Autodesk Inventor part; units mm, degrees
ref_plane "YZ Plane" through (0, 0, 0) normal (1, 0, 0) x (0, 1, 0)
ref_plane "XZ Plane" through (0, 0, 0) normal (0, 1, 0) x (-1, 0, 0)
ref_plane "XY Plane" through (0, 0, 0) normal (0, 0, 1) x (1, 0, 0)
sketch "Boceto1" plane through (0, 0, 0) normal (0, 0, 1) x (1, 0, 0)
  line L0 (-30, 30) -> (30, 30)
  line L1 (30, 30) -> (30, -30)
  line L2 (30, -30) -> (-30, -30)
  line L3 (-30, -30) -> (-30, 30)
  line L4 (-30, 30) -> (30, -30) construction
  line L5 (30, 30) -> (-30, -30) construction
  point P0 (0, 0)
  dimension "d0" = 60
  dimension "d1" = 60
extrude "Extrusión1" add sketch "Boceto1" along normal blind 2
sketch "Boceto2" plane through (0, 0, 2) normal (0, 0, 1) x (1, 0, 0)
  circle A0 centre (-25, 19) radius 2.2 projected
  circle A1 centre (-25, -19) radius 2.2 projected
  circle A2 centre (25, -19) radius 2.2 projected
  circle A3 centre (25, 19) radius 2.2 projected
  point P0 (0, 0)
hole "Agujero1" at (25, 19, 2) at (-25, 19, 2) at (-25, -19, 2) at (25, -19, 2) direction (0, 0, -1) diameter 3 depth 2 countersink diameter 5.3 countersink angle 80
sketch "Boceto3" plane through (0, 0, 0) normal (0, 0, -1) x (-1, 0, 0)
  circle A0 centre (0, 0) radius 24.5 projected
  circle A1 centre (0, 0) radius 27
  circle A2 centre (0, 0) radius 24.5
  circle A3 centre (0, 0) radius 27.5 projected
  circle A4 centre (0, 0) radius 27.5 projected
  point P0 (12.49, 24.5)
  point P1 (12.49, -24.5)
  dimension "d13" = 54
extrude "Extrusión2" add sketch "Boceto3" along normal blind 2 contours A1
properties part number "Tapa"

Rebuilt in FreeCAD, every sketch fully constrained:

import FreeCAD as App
import Part
import Sketcher
from FreeCAD import Vector


def add_polygon(sketch, points):
    """Adds a closed chain of lines whose ends are joined by coincident constraints."""
    first, n = sketch.GeometryCount, len(points)
    for a, b in zip(points, points[1:] + points[:1]):
        sketch.addGeometry(Part.LineSegment(App.Vector(*a, 0), App.Vector(*b, 0)), False)
    for i in range(n):
        sketch.addConstraint(Sketcher.Constraint("Coincident", first + i, 2, first + (i + 1) % n, 1))

doc = App.newDocument("Part")
body = doc.addObject("PartDesign::Body", "Body")

# Sketch on XY plane
sketch1 = body.newObject("Sketcher::SketchObject", "Sketch")
sketch1.AttachmentSupport = (doc.getObject("XY_Plane"), [""])
sketch1.MapMode = "FlatFace"
add_polygon(sketch1, [(30, 30), (-30, 30), (-30, -30), (30, -30)])  # lines 0-3
sketch1.addConstraint([
    Sketcher.Constraint("Horizontal", 0),
    Sketcher.Constraint("Vertical", 1),
    Sketcher.Constraint("Horizontal", 2),
    Sketcher.Constraint("Vertical", 3),
    Sketcher.Constraint("Symmetric", 0, 2, 2, 2, -1, 1),
    Sketcher.Constraint("Equal", 2, 1),
    Sketcher.Constraint("DistanceX", 0, 2, 0, 1, 60.0),
])
pad1 = body.newObject("PartDesign::Pad", "Pad")
pad1.Profile = sketch1
pad1.Length = 2

# Sketch on XY plane
sketch2 = body.newObject("Sketcher::SketchObject", "Sketch001")
sketch2.AttachmentSupport = (doc.getObject("XY_Plane"), [""])
sketch2.MapMode = "FlatFace"
sketch2.AttachmentOffset = App.Placement(Vector(0, 0, 2), App.Rotation())
sketch2.addGeometry([
    Part.Circle(Vector(25, 19, 0), Vector(0, 0, 1), 1.5),
    Part.Circle(Vector(-25, 19, 0), Vector(0, 0, 1), 1.5),
    Part.Circle(Vector(-25, -19, 0), Vector(0, 0, 1), 1.5),
    Part.Circle(Vector(25, -19, 0), Vector(0, 0, 1), 1.5),
], False)
sketch2.addConstraint([
    Sketcher.Constraint("Equal", 0, 1),
    Sketcher.Constraint("Equal", 1, 2),
    Sketcher.Constraint("Equal", 2, 3),
    Sketcher.Constraint("Symmetric", 0, 3, 2, 3, -1, 1),
    Sketcher.Constraint("Symmetric", 1, 3, 3, 3, -1, 1),
    Sketcher.Constraint("Symmetric", 0, 3, 1, 3, -2),
    Sketcher.Constraint("Diameter", 0, 3.0),
    Sketcher.Constraint("DistanceX", -1, 1, 0, 3, 25.0),
    Sketcher.Constraint("DistanceY", -1, 1, 0, 3, 19.0),
])
doc.recompute()
hole = body.newObject("PartDesign::Hole", "Hole")
hole.Profile = sketch2
hole.ThreadType = "None"
hole.Diameter = 3
hole.DepthType = "Dimension"
hole.Depth = 2
hole.DrillPoint = "Flat"
hole.HoleCutType = "Countersink"
hole.HoleCutDiameter = 5.3
hole.HoleCutCountersinkAngle = 80

# Sketch on XY plane
sketch3 = body.newObject("Sketcher::SketchObject", "Sketch002")
sketch3.AttachmentSupport = (doc.getObject("XY_Plane"), [""])
sketch3.MapMode = "FlatFace"
sketch3.addGeometry([
    Part.Circle(Vector(0, 0, 0), Vector(0, 0, 1), 27),
    Part.Circle(Vector(0, 0, 0), Vector(0, 0, 1), 24),
], False)
sketch3.addConstraint([
    Sketcher.Constraint("Coincident", 0, 3, -1, 1),
    Sketcher.Constraint("Coincident", 1, 3, -1, 1),
    Sketcher.Constraint("Diameter", 0, 54.0),
    Sketcher.Constraint("Diameter", 1, 49.0),
])
pad2 = body.newObject("PartDesign::Pad", "Pad001")
pad2.Profile = sketch3
pad2.Length = 2
pad2.Reversed = True

doc.recompute()
